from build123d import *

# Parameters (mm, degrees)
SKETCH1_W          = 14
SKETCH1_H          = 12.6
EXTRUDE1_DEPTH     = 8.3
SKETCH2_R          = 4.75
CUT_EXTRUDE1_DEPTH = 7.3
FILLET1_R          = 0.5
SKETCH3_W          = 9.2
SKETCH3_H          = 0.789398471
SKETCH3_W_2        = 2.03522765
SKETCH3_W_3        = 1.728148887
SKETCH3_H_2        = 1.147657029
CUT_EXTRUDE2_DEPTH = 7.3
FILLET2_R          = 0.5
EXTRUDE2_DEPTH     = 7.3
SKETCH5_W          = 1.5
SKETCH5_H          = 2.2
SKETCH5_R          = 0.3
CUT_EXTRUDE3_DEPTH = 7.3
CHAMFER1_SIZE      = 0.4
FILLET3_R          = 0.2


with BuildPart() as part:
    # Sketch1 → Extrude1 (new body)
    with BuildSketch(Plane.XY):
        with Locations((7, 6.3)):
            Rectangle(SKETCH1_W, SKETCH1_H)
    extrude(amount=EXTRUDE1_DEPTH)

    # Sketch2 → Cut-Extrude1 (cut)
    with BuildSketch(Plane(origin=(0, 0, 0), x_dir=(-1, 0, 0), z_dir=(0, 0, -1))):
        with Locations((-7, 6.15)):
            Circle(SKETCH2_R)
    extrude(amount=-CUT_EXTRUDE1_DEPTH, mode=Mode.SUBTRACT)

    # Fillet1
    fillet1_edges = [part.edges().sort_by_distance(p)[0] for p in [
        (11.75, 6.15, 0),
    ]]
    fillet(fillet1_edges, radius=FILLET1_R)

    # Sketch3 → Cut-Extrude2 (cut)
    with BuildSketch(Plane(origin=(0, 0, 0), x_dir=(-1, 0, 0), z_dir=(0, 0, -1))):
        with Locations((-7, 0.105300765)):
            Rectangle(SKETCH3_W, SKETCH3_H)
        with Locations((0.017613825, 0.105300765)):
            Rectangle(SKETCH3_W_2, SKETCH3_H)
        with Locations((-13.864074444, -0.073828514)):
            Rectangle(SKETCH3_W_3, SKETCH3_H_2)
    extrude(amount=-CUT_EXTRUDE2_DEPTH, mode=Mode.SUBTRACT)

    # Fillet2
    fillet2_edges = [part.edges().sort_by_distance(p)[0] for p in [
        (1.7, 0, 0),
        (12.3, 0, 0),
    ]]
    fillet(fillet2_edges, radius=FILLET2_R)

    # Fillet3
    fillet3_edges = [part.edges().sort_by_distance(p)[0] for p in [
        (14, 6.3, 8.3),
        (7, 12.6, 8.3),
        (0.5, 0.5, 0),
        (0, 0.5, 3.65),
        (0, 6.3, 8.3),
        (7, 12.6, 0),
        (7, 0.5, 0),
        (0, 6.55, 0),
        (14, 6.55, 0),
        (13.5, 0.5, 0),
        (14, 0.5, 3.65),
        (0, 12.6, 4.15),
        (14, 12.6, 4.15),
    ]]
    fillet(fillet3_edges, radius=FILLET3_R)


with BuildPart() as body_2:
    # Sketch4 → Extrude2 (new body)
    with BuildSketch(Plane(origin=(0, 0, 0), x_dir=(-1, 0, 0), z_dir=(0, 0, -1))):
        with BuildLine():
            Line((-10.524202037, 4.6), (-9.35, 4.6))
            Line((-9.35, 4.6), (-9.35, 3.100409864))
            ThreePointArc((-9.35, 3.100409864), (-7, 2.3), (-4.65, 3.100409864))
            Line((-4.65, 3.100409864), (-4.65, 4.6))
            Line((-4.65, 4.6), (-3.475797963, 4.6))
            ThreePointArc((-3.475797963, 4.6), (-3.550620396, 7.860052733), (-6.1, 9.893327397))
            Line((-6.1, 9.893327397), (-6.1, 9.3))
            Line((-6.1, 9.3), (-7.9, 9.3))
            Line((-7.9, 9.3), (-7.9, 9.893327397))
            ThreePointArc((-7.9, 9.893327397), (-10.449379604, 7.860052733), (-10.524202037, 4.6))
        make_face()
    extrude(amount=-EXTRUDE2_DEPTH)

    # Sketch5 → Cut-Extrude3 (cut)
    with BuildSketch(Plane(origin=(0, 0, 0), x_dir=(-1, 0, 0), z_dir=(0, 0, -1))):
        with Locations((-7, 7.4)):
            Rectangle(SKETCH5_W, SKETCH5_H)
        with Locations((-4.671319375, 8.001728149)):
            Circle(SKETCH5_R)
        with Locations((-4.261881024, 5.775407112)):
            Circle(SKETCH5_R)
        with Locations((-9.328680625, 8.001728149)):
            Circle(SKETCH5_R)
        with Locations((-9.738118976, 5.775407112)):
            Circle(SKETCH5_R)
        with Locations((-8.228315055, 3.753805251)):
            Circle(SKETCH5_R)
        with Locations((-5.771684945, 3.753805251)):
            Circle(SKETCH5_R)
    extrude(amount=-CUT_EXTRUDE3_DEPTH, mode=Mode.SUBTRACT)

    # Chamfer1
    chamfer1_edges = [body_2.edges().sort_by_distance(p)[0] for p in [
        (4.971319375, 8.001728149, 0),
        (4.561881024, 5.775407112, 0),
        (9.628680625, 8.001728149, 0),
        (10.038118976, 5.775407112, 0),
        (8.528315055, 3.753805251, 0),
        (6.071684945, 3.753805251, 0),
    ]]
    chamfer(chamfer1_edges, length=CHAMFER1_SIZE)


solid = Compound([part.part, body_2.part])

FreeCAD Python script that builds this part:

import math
import FreeCAD as App
import Part
import Sketcher

V = App.Vector
Q = App.Units.Quantity


def edges_at(feature, points):
    """Names of the edges that pass closest to the given points."""
    edges = feature.Shape.Edges
    near = lambda p: min(range(len(edges)), key=lambda i: edges[i].distToShape(Part.Vertex(*p))[0])
    return sorted({f"Edge{near(p) + 1}" for p in points})


def add_polygon(sketch, points):
    """Adds a closed chain of lines whose ends are joined by coincident constraints."""
    first, n = sketch.GeometryCount, len(points)
    for a, b in zip(points, points[1:] + points[:1]):
        sketch.addGeometry(Part.LineSegment(App.Vector(*a, 0), App.Vector(*b, 0)), False)
    for i in range(n):
        sketch.addConstraint(Sketcher.Constraint("Coincident", first + i, 2, first + (i + 1) % n, 1))

doc = App.newDocument("Part")
body = doc.addObject("PartDesign::Body", "Body")

# Sketch on XY plane
sketch1 = doc.addObject("Sketcher::SketchObject", "Sketch")
body.addObject(sketch1)
sketch1.AttachmentSupport = (doc.XY_Plane, [""])
sketch1.MapMode = "FlatFace"
add_polygon(sketch1, [(0, 13), (0, 0), (14, 0), (14, 13)])  # lines 0-3
sketch1.addConstraint([
    Sketcher.Constraint("Vertical", 0),
    Sketcher.Constraint("Horizontal", 1),
    Sketcher.Constraint("Vertical", 2),
    Sketcher.Constraint("Horizontal", 3),
    Sketcher.Constraint("Coincident", 0, 2, -1, 1),
    Sketcher.Constraint("DistanceX", 1, 1, 1, 2, Q("14 mm")),
    Sketcher.Constraint("DistanceY", 0, 2, 0, 1, Q("12.6 mm")),
])
pad1 = doc.addObject("PartDesign::Pad", "Pad")
body.addObject(pad1)
pad1.Profile = sketch1
pad1.Length = 8.3

# Sketch on XY plane
sketch2 = doc.addObject("Sketcher::SketchObject", "Sketch001")
body.addObject(sketch2)
sketch2.AttachmentSupport = (doc.XY_Plane, [""])
sketch2.MapMode = "FlatFace"
sketch2.addGeometry(Part.Circle(V(7, 6.2, 0), V(0, 0, 1), 4.8), False)
sketch2.addConstraint([
    Sketcher.Constraint("Diameter", 0, Q("9.5 mm")),
    Sketcher.Constraint("DistanceX", -1, 1, 0, 3, Q("7 mm")),
    Sketcher.Constraint("DistanceY", -1, 1, 0, 3, Q("6.15 mm")),
])
pocket1 = doc.addObject("PartDesign::Pocket", "Pocket")
body.addObject(pocket1)
pocket1.Profile = sketch2
pocket1.Length = 7.3
pocket1.Reversed = True
doc.recompute()

fillet = doc.addObject("PartDesign::Fillet", "Fillet")
body.addObject(fillet)
fillet.Base = (pocket1, edges_at(pocket1, [(11.75, 6.15, 0)]))
fillet.Radius = 0.5

# Sketch on XY plane
sketch3 = doc.addObject("Sketcher::SketchObject", "Sketch002")
body.addObject(sketch3)
sketch3.AttachmentSupport = (doc.XY_Plane, [""])
sketch3.MapMode = "FlatFace"
add_polygon(sketch3, [(11.6, 0.5), (11.6, -0.3), (2.4, -0.3), (2.4, 0.5)])  # lines 0-3
add_polygon(sketch3, [(1, 0.5), (1, -0.3), (-1, -0.3), (-1, 0.5)])  # lines 4-7
add_polygon(sketch3, [(14.7, 0.5), (14.7, -0.6), (13, -0.6), (13, 0.5)])  # lines 8-11
sketch3.addConstraint([
    Sketcher.Constraint("Vertical", 0),
    Sketcher.Constraint("Horizontal", 1),
    Sketcher.Constraint("Vertical", 2),
    Sketcher.Constraint("Horizontal", 3),
    Sketcher.Constraint("Vertical", 4),
    Sketcher.Constraint("Horizontal", 5),
    Sketcher.Constraint("Vertical", 6),
    Sketcher.Constraint("Horizontal", 7),
    Sketcher.Constraint("Vertical", 8),
    Sketcher.Constraint("Horizontal", 9),
    Sketcher.Constraint("Vertical", 10),
    Sketcher.Constraint("Horizontal", 11),
    Sketcher.Constraint("Horizontal", 1, 2, 4, 2),
    Sketcher.Constraint("Horizontal", 3, 2, 6, 2),
    Sketcher.Constraint("Horizontal", 7, 2, 10, 2),
    Sketcher.Constraint("DistanceX", 1, 2, 1, 1, Q("9.2 mm")),
    Sketcher.Constraint("DistanceX", -1, 1, 4, 2, Q("1 mm")),
    Sketcher.Constraint("DistanceX", -1, 1, 9, 2, Q("13 mm")),
    Sketcher.Constraint("DistanceX", -1, 1, 0, 2, Q("11.6 mm")),
    Sketcher.Constraint("DistanceY", -1, 1, 2, 2, Q("0.5 mm")),
    Sketcher.Constraint("DistanceY", 0, 2, 0, 1, Q("0.789398 mm")),
    Sketcher.Constraint("DistanceX", 9, 2, 9, 1, Q("1.728149 mm")),
    Sketcher.Constraint("DistanceX", 5, 2, 5, 1, Q("2.035228 mm")),
    Sketcher.Constraint("DistanceY", 8, 2, 8, 1, Q("1.147657 mm")),
])
pocket2 = doc.addObject("PartDesign::Pocket", "Pocket001")
body.addObject(pocket2)
pocket2.Profile = sketch3
pocket2.Length = 7.3
pocket2.Reversed = True
doc.recompute()

fillet2 = doc.addObject("PartDesign::Fillet", "Fillet001")
body.addObject(fillet2)
fillet2.Base = (pocket2, edges_at(pocket2, [(1.7, 0, 0), (12.3, 0, 0)]))
fillet2.Radius = 0.5
doc.recompute()

fillet3 = doc.addObject("PartDesign::Fillet", "Fillet002")
body.addObject(fillet3)
fillet3.Base = (fillet2, edges_at(fillet2, [
    (14, 6.3, 8.3),
    (7, 12.6, 8.3),
    (0.5, 0.5, 0),
    (0, 0.5, 3.65),
    (0, 6.3, 8.3),
    (7, 12.6, 0),
    (7, 0.5, 0),
    (0, 6.55, 0),
    (14, 6.55, 0),
    (13.5, 0.5, 0),
    (14, 0.5, 3.65),
    (0, 12.6, 4.15),
    (14, 12.6, 4.15),
]))
fillet3.Radius = 0.2
body2 = doc.addObject("PartDesign::Body", "Body001")

# Sketch on XY plane
sketch4 = doc.addObject("Sketcher::SketchObject", "Sketch003")
body2.addObject(sketch4)
sketch4.AttachmentSupport = (doc.getObject("XY_Plane001"), [""])
sketch4.MapMode = "FlatFace"
sketch4.addGeometry([
    Part.LineSegment(V(10.5, 4.6, 0), V(9.3, 4.6, 0)),  # 0
    Part.LineSegment(V(9.3, 4.6, 0), V(9.3, 3.1, 0)),  # 1
    Part.ArcOfCircle(Part.Circle(V(7, 6.1, 0), V(0, 0, 1), 3.8), math.radians(-128), math.radians(-52)),  # 2
    Part.LineSegment(V(4.7, 3.1, 0), V(4.7, 4.6, 0)),  # 3
    Part.LineSegment(V(4.7, 4.6, 0), V(3.5, 4.6, 0)),  # 4
    Part.ArcOfCircle(Part.Circle(V(7, 6.2, 0), V(0, 0, 1), 3.8), math.radians(104), math.radians(204)),  # 5
    Part.LineSegment(V(6.1, 9.9, 0), V(6.1, 9.3, 0)),  # 6
    Part.LineSegment(V(6.1, 9.3, 0), V(7.9, 9.3, 0)),  # 7
    Part.LineSegment(V(7.9, 9.3, 0), V(7.9, 9.9, 0)),  # 8
    Part.ArcOfCircle(Part.Circle(V(7, 6.2, 0), V(0, 0, 1), 3.8), math.radians(-24), math.radians(76)),  # 9
], False)
sketch4.addConstraint([
    Sketcher.Constraint("Coincident", 0, 2, 1, 1),
    Sketcher.Constraint("Coincident", 1, 2, 2, 2),
    Sketcher.Constraint("Coincident", 2, 1, 3, 1),
    Sketcher.Constraint("Coincident", 3, 2, 4, 1),
    Sketcher.Constraint("Coincident", 4, 2, 5, 2),
    Sketcher.Constraint("Coincident", 5, 1, 6, 1),
    Sketcher.Constraint("Coincident", 6, 2, 7, 1),
    Sketcher.Constraint("Coincident", 7, 2, 8, 1),
    Sketcher.Constraint("Coincident", 8, 2, 9, 2),
    Sketcher.Constraint("Coincident", 9, 1, 0, 1),
    Sketcher.Constraint("Horizontal", 0),
    Sketcher.Constraint("Vertical", 1),
    Sketcher.Constraint("Vertical", 3),
    Sketcher.Constraint("Horizontal", 4),
    Sketcher.Constraint("Vertical", 6),
    Sketcher.Constraint("Horizontal", 7),
    Sketcher.Constraint("Vertical", 8),
    Sketcher.Constraint("Coincident", 5, 3, 2, 3),
    Sketcher.Constraint("Coincident", 9, 3, 2, 3),
    Sketcher.Constraint("Equal", 2, 5),
    Sketcher.Constraint("Equal", 5, 9),
    Sketcher.Constraint("Horizontal", 1, 2, 2, 1),
    Sketcher.Constraint("Horizontal", 0, 2, 3, 2),
    Sketcher.Constraint("Horizontal", 5, 1, 8, 2),
    Sketcher.Constraint("Radius", 2, Q("3.85 mm")),
    Sketcher.Constraint("DistanceX", 7, 1, 7, 2, Q("1.8 mm")),
    Sketcher.Constraint("DistanceX", -1, 1, 2, 3, Q("7 mm")),
    Sketcher.Constraint("DistanceY", -1, 1, 0, 2, Q("4.6 mm")),
    Sketcher.Constraint("DistanceY", -1, 1, 6, 2, Q("9.3 mm")),
    Sketcher.Constraint("DistanceX", 2, 1, 1, 2, Q("4.7 mm")),
    Sketcher.Constraint("DistanceY", -1, 1, 2, 3, Q("6.15 mm")),
])
pad2 = doc.addObject("PartDesign::Pad", "Pad001")
body2.addObject(pad2)
pad2.Profile = sketch4
pad2.Length = 7.3

# Sketch on XY plane
sketch5 = doc.addObject("Sketcher::SketchObject", "Sketch004")
body2.addObject(sketch5)
sketch5.AttachmentSupport = (doc.getObject("XY_Plane001"), [""])
sketch5.MapMode = "FlatFace"
add_polygon(sketch5, [(7.75, 8.5), (7.75, 6.3), (6.25, 6.3), (6.25, 8.5)])  # lines 0-3
sketch5.addGeometry(Part.Circle(V(4.67, 8, 0), V(0, 0, 1), 0.3), False)  # 4
sketch5.addGeometry(Part.Circle(V(4.26, 5.78, 0), V(0, 0, 1), 0.3), False)  # 5
sketch5.addGeometry(Part.Circle(V(9.33, 8, 0), V(0, 0, 1), 0.3), False)  # 6
sketch5.addGeometry(Part.Circle(V(9.74, 5.78, 0), V(0, 0, 1), 0.3), False)  # 7
sketch5.addGeometry(Part.Circle(V(8.23, 3.75, 0), V(0, 0, 1), 0.3), False)  # 8
sketch5.addGeometry(Part.Circle(V(5.77, 3.75, 0), V(0, 0, 1), 0.3), False)  # 9
sketch5.addConstraint([
    Sketcher.Constraint("Vertical", 0),
    Sketcher.Constraint("Horizontal", 1),
    Sketcher.Constraint("Vertical", 2),
    Sketcher.Constraint("Horizontal", 3),
    Sketcher.Constraint("Equal", 4, 5),
    Sketcher.Constraint("Equal", 5, 6),
    Sketcher.Constraint("Equal", 6, 7),
    Sketcher.Constraint("Equal", 7, 8),
    Sketcher.Constraint("Equal", 8, 9),
    Sketcher.Constraint("Horizontal", 4, 3, 6, 3),
    Sketcher.Constraint("Horizontal", 5, 3, 7, 3),
    Sketcher.Constraint("Horizontal", 8, 3, 9, 3),
    Sketcher.Constraint("Diameter", 4, Q("0.6 mm")),
    Sketcher.Constraint("DistanceX", 1, 2, 1, 1, Q("1.5 mm")),
    Sketcher.Constraint("DistanceY", 0, 2, 0, 1, Q("2.2 mm")),
    Sketcher.Constraint("DistanceY", -1, 1, 0, 2, Q("6.3 mm")),
    Sketcher.Constraint("DistanceX", -1, 1, 0, 2, Q("7.75 mm")),
    Sketcher.Constraint("DistanceX", 5, 3, 6, 3, Q("5.0668 mm")),
    Sketcher.Constraint("DistanceX", 4, 3, 7, 3, Q("5.0668 mm")),
    Sketcher.Constraint("DistanceY", 8, 3, 7, 3, Q("2.021602 mm")),
    Sketcher.Constraint("DistanceX", -1, 1, 4, 3, Q("4.671319 mm")),
    Sketcher.Constraint("DistanceY", -1, 1, 4, 3, Q("8.001728 mm")),
    Sketcher.Constraint("DistanceX", -1, 1, 5, 3, Q("4.261881 mm")),
    Sketcher.Constraint("DistanceY", 5, 3, 4, 3, Q("2.226321 mm")),
    Sketcher.Constraint("DistanceX", 9, 3, 8, 3, Q("2.45663 mm")),
    Sketcher.Constraint("DistanceX", -1, 1, 8, 3, Q("8.228315 mm")),
])
pocket3 = doc.addObject("PartDesign::Pocket", "Pocket002")
body2.addObject(pocket3)
pocket3.Profile = sketch5
pocket3.Length = 7.3
pocket3.Reversed = True
doc.recompute()

chamfer = doc.addObject("PartDesign::Chamfer", "Chamfer")
body2.addObject(chamfer)
chamfer.Base = (pocket3, edges_at(pocket3, [
    (4.971, 8.002, 0),
    (4.562, 5.775, 0),
    (9.629, 8.002, 0),
    (10.038, 5.775, 0),
    (8.528, 3.754, 0),
    (6.072, 3.754, 0),
]))
chamfer.Size = 0.4

doc.recompute()
